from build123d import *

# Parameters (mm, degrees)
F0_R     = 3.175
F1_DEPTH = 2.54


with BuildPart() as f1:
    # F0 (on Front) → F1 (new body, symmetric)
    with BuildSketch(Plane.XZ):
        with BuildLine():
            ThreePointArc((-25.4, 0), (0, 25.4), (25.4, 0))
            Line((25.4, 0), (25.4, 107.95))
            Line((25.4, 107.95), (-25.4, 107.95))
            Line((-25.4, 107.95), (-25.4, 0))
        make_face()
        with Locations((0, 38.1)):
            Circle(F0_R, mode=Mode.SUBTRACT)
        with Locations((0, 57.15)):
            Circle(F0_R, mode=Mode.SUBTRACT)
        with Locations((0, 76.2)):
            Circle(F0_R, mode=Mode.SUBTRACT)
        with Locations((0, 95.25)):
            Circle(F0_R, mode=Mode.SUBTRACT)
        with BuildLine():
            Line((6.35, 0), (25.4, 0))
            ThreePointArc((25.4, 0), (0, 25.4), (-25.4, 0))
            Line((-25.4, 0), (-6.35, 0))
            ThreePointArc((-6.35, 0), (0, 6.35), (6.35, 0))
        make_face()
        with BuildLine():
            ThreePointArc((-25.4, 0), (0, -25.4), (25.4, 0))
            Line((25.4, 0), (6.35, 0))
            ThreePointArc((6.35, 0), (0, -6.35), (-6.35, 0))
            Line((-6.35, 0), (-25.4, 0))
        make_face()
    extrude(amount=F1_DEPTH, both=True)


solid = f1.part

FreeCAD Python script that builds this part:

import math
import FreeCAD as App
import Part
import Sketcher

V = App.Vector
Q = App.Units.Quantity

doc = App.newDocument("Part")
body = doc.addObject("PartDesign::Body", "Body")

sketch1 = body.newObject("Sketcher::SketchObject", "Sketch")
sketch1.AttachmentSupport = (doc.getObject("XZ_Plane"), [""])
sketch1.MapMode = "FlatFace"
sketch1.addGeometry([
    Part.LineSegment(V(-25.4, 108, 0), V(-25.4, 0, 0)),
    Part.ArcOfCircle(Part.Circle(V(0, 0, 0), V(0, 0, 1), 25.4), math.radians(180), math.radians(360)),
    Part.LineSegment(V(25.4, 0, 0), V(25.4, 108, 0)),
    Part.LineSegment(V(25.4, 108, 0), V(-25.4, 108, 0)),
    Part.Circle(V(0, 0, 0), V(0, 0, 1), 6.3),
    Part.Circle(V(0, 38.1, 0), V(0, 0, 1), 3.2),
    Part.Circle(V(0, 57.1, 0), V(0, 0, 1), 3.2),
    Part.Circle(V(0, 76.2, 0), V(0, 0, 1), 3.2),
    Part.Circle(V(0, 95.2, 0), V(0, 0, 1), 3.2),
], False)
sketch1.addConstraint([
    Sketcher.Constraint("Tangent", 0, 2, 1, 1),
    Sketcher.Constraint("Tangent", 1, 2, 2, 1),
    Sketcher.Constraint("Coincident", 2, 2, 3, 1),
    Sketcher.Constraint("Coincident", 3, 2, 0, 1),
    Sketcher.Constraint("Vertical", 0),
    Sketcher.Constraint("Vertical", 2),
    Sketcher.Constraint("Horizontal", 3),
    Sketcher.Constraint("Coincident", 1, 3, -1, 1),
    Sketcher.Constraint("Coincident", 4, 3, -1, 1),
    Sketcher.Constraint("Equal", 5, 6),
    Sketcher.Constraint("Equal", 6, 7),
    Sketcher.Constraint("Equal", 7, 8),
    Sketcher.Constraint("PointOnObject", 5, 3, -2),
    Sketcher.Constraint("PointOnObject", 6, 3, -2),
    Sketcher.Constraint("PointOnObject", 7, 3, -2),
    Sketcher.Constraint("PointOnObject", 8, 3, -2),
    Sketcher.Constraint("Radius", 1, Q("1 in")),
    Sketcher.Constraint("Diameter", 4, Q("0.5 in")),
    Sketcher.Constraint("Diameter", 5, Q("0.25 in")),
    Sketcher.Constraint("DistanceY", -1, 1, 7, 3, Q("3 in")),
    Sketcher.Constraint("DistanceY", 6, 3, 2, 2, Q("2 in")),
    Sketcher.Constraint("DistanceY", 0, 2, 0, 1, Q("4.25 in")),
    Sketcher.Constraint("DistanceY", -1, 1, 5, 3, Q("1.5 in")),
    Sketcher.Constraint("DistanceY", 6, 3, 8, 3, Q("1.5 in")),
])
pad1 = body.newObject("PartDesign::Pad", "Pad")
pad1.Profile = sketch1
pad1.Length = Q("0.2 in")
pad1.Midplane = True

doc.recompute()
